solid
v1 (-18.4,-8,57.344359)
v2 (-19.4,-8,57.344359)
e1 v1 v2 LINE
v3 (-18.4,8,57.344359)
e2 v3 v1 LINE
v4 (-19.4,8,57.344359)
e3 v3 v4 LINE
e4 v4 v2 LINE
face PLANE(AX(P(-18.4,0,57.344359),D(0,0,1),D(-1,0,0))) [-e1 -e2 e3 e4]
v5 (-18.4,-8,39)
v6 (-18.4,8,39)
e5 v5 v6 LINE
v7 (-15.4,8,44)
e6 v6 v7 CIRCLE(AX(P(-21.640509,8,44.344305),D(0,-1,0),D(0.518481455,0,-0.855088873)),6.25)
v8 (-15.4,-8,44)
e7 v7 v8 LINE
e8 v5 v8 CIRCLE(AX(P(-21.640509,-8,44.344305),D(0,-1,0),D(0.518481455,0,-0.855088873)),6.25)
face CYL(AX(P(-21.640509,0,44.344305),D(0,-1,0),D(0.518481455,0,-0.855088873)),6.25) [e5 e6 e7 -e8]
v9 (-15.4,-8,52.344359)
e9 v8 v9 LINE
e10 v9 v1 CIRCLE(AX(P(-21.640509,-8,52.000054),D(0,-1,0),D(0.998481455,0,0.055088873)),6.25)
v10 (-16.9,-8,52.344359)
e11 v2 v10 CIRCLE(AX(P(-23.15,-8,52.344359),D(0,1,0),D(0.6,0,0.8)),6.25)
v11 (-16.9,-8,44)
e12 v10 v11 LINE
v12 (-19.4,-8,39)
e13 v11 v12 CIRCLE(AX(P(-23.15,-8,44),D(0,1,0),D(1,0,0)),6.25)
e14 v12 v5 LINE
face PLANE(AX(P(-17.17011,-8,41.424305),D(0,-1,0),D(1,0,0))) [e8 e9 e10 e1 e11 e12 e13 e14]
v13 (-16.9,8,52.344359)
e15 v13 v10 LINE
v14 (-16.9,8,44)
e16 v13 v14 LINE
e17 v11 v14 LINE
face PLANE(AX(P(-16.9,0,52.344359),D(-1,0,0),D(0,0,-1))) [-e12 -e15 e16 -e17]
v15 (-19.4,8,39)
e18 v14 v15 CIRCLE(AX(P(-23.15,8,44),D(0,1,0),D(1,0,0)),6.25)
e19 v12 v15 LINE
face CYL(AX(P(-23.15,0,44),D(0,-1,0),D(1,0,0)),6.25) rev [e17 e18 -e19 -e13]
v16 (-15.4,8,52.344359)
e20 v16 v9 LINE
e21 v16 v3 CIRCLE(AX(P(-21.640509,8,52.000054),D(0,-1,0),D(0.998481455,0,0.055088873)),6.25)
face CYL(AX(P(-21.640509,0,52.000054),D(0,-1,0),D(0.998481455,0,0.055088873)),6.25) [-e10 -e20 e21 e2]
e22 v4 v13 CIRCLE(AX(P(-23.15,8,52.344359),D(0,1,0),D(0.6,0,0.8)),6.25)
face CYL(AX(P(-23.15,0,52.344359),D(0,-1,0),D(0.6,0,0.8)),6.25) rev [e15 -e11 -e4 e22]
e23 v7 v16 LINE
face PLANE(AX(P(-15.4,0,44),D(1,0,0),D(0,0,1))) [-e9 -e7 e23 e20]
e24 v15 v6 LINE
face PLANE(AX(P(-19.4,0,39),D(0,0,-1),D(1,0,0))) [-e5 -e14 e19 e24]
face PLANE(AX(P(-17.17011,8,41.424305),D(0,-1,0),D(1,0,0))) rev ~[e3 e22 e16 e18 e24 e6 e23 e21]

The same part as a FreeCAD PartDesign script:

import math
import FreeCAD as App
import Part
import Sketcher
from FreeCAD import Vector
Q = App.Units.Quantity

doc = App.newDocument("Part")
body = doc.addObject("PartDesign::Body", "Body")

sketch1 = doc.addObject("Sketcher::SketchObject", "Sketch")
body.addObject(sketch1)
sketch1.AttachmentSupport = (doc.XZ_Plane, [""])
sketch1.MapMode = "FlatFace"
sketch1.addGeometry([
    Part.ArcOfCircle(Part.Circle(Vector(-21.640509, 44.344305, 0), Vector(0, 0, 1), 6.25), math.radians(-58.769554), math.radians(-3.157959)),
    Part.LineSegment(Vector(-15.4, 44, 0), Vector(-15.4, 52.344359, 0)),
    Part.ArcOfCircle(Part.Circle(Vector(-21.640509, 52.000054, 0), Vector(0, 0, 1), 6.25), math.radians(3.157959), math.radians(58.769554)),
    Part.LineSegment(Vector(-18.4, 57.344359, 0), Vector(-19.4, 57.344359, 0)),
    Part.ArcOfCircle(Part.Circle(Vector(-23.15, 52.344359, 0), Vector(0, 0, 1), 6.25), math.radians(0), math.radians(53.130102)),
    Part.LineSegment(Vector(-16.9, 52.344359, 0), Vector(-16.9, 44, 0)),
    Part.ArcOfCircle(Part.Circle(Vector(-23.15, 44, 0), Vector(0, 0, 1), 6.25), math.radians(-53.130102), math.radians(0)),
    Part.LineSegment(Vector(-19.4, 39, 0), Vector(-18.4, 39, 0)),
], False)
sketch1.addConstraint([
    Sketcher.Constraint("Coincident", 0, 2, 1, 1),
    Sketcher.Constraint("Coincident", 1, 2, 2, 1),
    Sketcher.Constraint("Coincident", 2, 2, 3, 1),
    Sketcher.Constraint("Coincident", 3, 2, 4, 2),
    Sketcher.Constraint("Tangent", 4, 1, 5, 1),
    Sketcher.Constraint("Tangent", 5, 2, 6, 2),
    Sketcher.Constraint("Coincident", 6, 1, 7, 1),
    Sketcher.Constraint("Coincident", 7, 2, 0, 1),
    Sketcher.Constraint("Vertical", 1),
    Sketcher.Constraint("Horizontal", 3),
    Sketcher.Constraint("Vertical", 5),
    Sketcher.Constraint("Horizontal", 7),
    Sketcher.Constraint("Equal", 0, 2),
    Sketcher.Constraint("Equal", 2, 4),
    Sketcher.Constraint("Equal", 4, 6),
    Sketcher.Constraint("Horizontal", 6, 3, 0, 2),
    Sketcher.Constraint("Horizontal", 4, 3, 1, 2),
    Sketcher.Constraint("Vertical", 0, 3, 2, 3),
    Sketcher.Constraint("Vertical", 3, 2, 6, 1),
    Sketcher.Constraint("DistanceX", 3, 2, 3, 1, Q("1 mm")),
    Sketcher.Constraint("Radius", 0, Q("6.25 mm")),
    Sketcher.Constraint("DistanceY", -1, 1, 6, 3, Q("44 mm")),
    Sketcher.Constraint("DistanceY", -1, 1, 6, 1, Q("39 mm")),
    Sketcher.Constraint("DistanceX", 2, 2, 1, 2, Q("3 mm")),
    Sketcher.Constraint("DistanceX", 0, 2, -1, 1, Q("15.4 mm")),
    Sketcher.Constraint("DistanceY", 1, 1, 1, 2, Q("8.344359 mm")),
])
pad1 = doc.addObject("PartDesign::Pad", "Pad")
body.addObject(pad1)
pad1.Profile = sketch1
pad1.Type = "TwoLengths"
pad1.Length = 8
pad1.Length2 = 8

doc.recompute()
